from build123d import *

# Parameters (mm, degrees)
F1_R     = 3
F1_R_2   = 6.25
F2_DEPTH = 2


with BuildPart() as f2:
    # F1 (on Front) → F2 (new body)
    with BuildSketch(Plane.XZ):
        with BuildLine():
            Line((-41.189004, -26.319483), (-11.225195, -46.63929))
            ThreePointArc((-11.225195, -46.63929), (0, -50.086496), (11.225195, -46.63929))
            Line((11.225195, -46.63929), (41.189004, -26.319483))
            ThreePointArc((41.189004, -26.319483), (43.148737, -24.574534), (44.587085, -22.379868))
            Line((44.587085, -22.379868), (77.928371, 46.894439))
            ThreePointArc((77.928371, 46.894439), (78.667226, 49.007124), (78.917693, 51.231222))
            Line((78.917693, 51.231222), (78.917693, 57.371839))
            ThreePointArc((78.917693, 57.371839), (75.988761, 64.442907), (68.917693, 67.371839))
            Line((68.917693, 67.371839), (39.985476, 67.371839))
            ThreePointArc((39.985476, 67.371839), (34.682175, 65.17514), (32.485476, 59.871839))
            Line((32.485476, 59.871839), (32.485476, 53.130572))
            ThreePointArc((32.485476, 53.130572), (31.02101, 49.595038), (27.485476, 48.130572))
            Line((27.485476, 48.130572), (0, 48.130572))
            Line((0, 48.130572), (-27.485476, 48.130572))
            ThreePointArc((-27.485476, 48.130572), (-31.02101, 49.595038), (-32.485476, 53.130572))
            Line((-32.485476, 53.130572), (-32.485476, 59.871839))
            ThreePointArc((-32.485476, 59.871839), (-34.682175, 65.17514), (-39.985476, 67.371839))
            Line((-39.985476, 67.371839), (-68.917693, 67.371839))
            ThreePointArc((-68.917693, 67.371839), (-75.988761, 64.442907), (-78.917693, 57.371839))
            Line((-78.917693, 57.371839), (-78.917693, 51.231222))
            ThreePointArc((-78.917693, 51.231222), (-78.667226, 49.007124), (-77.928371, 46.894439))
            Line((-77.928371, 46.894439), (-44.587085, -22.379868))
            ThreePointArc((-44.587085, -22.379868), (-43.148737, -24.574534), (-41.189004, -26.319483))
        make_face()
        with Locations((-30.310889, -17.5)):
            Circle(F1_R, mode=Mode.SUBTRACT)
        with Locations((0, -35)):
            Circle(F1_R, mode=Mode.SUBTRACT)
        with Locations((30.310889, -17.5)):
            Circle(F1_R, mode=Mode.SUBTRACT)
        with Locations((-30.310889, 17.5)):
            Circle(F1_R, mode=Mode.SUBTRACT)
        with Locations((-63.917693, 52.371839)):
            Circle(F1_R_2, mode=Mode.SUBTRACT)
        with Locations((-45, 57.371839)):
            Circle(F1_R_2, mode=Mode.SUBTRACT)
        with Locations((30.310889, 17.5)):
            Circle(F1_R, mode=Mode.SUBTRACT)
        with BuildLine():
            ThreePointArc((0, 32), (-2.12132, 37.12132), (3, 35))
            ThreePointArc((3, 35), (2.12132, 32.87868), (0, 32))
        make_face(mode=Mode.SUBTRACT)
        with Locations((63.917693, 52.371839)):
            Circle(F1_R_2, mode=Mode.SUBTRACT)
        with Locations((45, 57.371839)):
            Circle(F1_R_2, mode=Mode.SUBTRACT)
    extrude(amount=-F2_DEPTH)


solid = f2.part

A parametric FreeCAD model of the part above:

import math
import FreeCAD as App
import Part
import Sketcher

doc = App.newDocument("Part")
params = doc.addObject("Spreadsheet::Sheet", "Params")
for row, (alias, value) in enumerate([
    ("sketch1_diameter", "6 mm"),
    ("sketch1_diameter2", "6 mm"),
    ("sketch1_diameter3", "6 mm"),
    ("sketch1_diameter4", "6 mm"),
    ("sketch1_diameter5", "6 mm"),
    ("pad1_length", "2 mm"),
], start=1):
    params.set(f"A{row}", alias)
    params.set(f"B{row}", "=" + value)
    params.setAlias(f"B{row}", alias)

body = doc.addObject("PartDesign::Body", "Body")

sketch1 = body.newObject("Sketcher::SketchObject", "Sketch")
sketch1.AttachmentSupport = (doc.getObject("XZ_Plane"), [""])
sketch1.MapMode = "FlatFace"
sketch1.addGeometry(Part.LineSegment(App.Vector(-41.189004, -26.319483, 0), App.Vector(-11.225195, -46.63929, 0)), False)
sketch1.addGeometry(Part.ArcOfCircle(Part.Circle(App.Vector(0, -30.086497, 0), App.Vector(0, 0, 1), 19.999999), math.radians(-124.142965), math.radians(-55.857035)), False)
sketch1.addGeometry(Part.LineSegment(App.Vector(11.225195, -46.63929, 0), App.Vector(41.189004, -26.319483, 0)), False)
sketch1.addGeometry(Part.ArcOfCircle(Part.Circle(App.Vector(35.576408, -18.043086, 0), App.Vector(0, 0, 1), 9.999999), math.radians(-55.857042), math.radians(-25.701217)), False)
sketch1.addGeometry(Part.LineSegment(App.Vector(44.587085, -22.379868, 0), App.Vector(77.928371, 46.894439, 0)), False)
sketch1.addGeometry(Part.ArcOfCircle(Part.Circle(App.Vector(68.917699, 51.23122, 0), App.Vector(0, 0, 1), 9.999994), math.radians(-25.701226), math.radians(0.000011)), False)
sketch1.addGeometry(Part.LineSegment(App.Vector(78.917693, 51.231222, 0), App.Vector(78.917693, 57.371839, 0)), False)
sketch1.addGeometry(Part.ArcOfCircle(Part.Circle(App.Vector(68.917694, 57.37184, 0), App.Vector(0, 0, 1), 9.999999), math.radians(-0.000004), math.radians(90.000004)), False)
sketch1.addGeometry(Part.LineSegment(App.Vector(68.917693, 67.371839, 0), App.Vector(39.985476, 67.371839, 0)), False)
sketch1.addGeometry(Part.ArcOfCircle(Part.Circle(App.Vector(39.985476, 59.871839, 0), App.Vector(0, 0, 1), 7.5), math.radians(89.999996), math.radians(180.000004)), False)
sketch1.addGeometry(Part.LineSegment(App.Vector(32.485476, 59.871839, 0), App.Vector(32.485476, 53.130572, 0)), False)
sketch1.addGeometry(Part.ArcOfCircle(Part.Circle(App.Vector(27.485476, 53.130572, 0), App.Vector(0, 0, 1), 5), math.radians(-90.000004), math.radians(0.000004)), False)
sketch1.addGeometry(Part.LineSegment(App.Vector(27.485476, 48.130572, 0), App.Vector(-27.485476, 48.130572, 0)), False)
sketch1.addGeometry(Part.ArcOfCircle(Part.Circle(App.Vector(-27.485476, 53.130572, 0), App.Vector(0, 0, 1), 5), math.radians(179.999996), math.radians(270.000004)), False)
sketch1.addGeometry(Part.LineSegment(App.Vector(-32.485476, 53.130572, 0), App.Vector(-32.485476, 59.871839, 0)), False)
sketch1.addGeometry(Part.ArcOfCircle(Part.Circle(App.Vector(-39.985476, 59.871839, 0), App.Vector(0, 0, 1), 7.5), math.radians(-0.000004), math.radians(90.000004)), False)
sketch1.addGeometry(Part.LineSegment(App.Vector(-39.985476, 67.371839, 0), App.Vector(-68.917693, 67.371839, 0)), False)
sketch1.addGeometry(Part.ArcOfCircle(Part.Circle(App.Vector(-68.917694, 57.37184, 0), App.Vector(0, 0, 1), 9.999999), math.radians(89.999996), math.radians(180.000004)), False)
sketch1.addGeometry(Part.LineSegment(App.Vector(-78.917693, 57.371839, 0), App.Vector(-78.917693, 51.231222, 0)), False)
sketch1.addGeometry(Part.ArcOfCircle(Part.Circle(App.Vector(-68.917699, 51.23122, 0), App.Vector(0, 0, 1), 9.999994), math.radians(179.999989), math.radians(205.701226)), False)
sketch1.addGeometry(Part.LineSegment(App.Vector(-77.928371, 46.894439, 0), App.Vector(-44.587085, -22.379868, 0)), False)
sketch1.addGeometry(Part.ArcOfCircle(Part.Circle(App.Vector(-35.576408, -18.043086, 0), App.Vector(0, 0, 1), 9.999999), math.radians(-154.298783), math.radians(-124.142958)), False)
sketch1.addGeometry(Part.Circle(App.Vector(-30.310889, -17.5, 0), App.Vector(0, 0, 1), 3), False)
sketch1.addGeometry(Part.Circle(App.Vector(0, -35, 0), App.Vector(0, 0, 1), 3), False)
sketch1.addGeometry(Part.Circle(App.Vector(30.310889, -17.5, 0), App.Vector(0, 0, 1), 3), False)
sketch1.addGeometry(Part.Circle(App.Vector(-30.310889, 17.5, 0), App.Vector(0, 0, 1), 3), False)
sketch1.addGeometry(Part.Circle(App.Vector(-63.917693, 52.371839, 0), App.Vector(0, 0, 1), 6.25), False)
sketch1.addGeometry(Part.Circle(App.Vector(-45, 57.371839, 0), App.Vector(0, 0, 1), 6.25), False)
sketch1.addGeometry(Part.Circle(App.Vector(30.310889, 17.5, 0), App.Vector(0, 0, 1), 3), False)
sketch1.addGeometry(Part.ArcOfCircle(Part.Circle(App.Vector(-0.000001, 35.000001, 0), App.Vector(0, 0, 1), 3.000001), math.radians(-89.999978), math.radians(-0.000022)), False)
sketch1.addGeometry(Part.ArcOfCircle(Part.Circle(App.Vector(0, 35, 0), App.Vector(0, 0, 1), 3), math.radians(0.000004), math.radians(269.999996)), False)
sketch1.addGeometry(Part.Circle(App.Vector(45, 57.371839, 0), App.Vector(0, 0, 1), 6.25), False)
sketch1.addGeometry(Part.Circle(App.Vector(63.917693, 52.371839, 0), App.Vector(0, 0, 1), 6.25), False)
sketch1.addConstraint(Sketcher.Constraint("Coincident", 0, 2, 1, 1))
sketch1.addConstraint(Sketcher.Constraint("Coincident", 1, 2, 2, 1))
sketch1.addConstraint(Sketcher.Constraint("Coincident", 2, 2, 3, 1))
sketch1.addConstraint(Sketcher.Constraint("Coincident", 3, 2, 4, 1))
sketch1.addConstraint(Sketcher.Constraint("Coincident", 4, 2, 5, 1))
sketch1.addConstraint(Sketcher.Constraint("Coincident", 5, 2, 6, 1))
sketch1.addConstraint(Sketcher.Constraint("Coincident", 6, 2, 7, 1))
sketch1.addConstraint(Sketcher.Constraint("Coincident", 7, 2, 8, 1))
sketch1.addConstraint(Sketcher.Constraint("Coincident", 8, 2, 9, 1))
sketch1.addConstraint(Sketcher.Constraint("Coincident", 9, 2, 10, 1))
sketch1.addConstraint(Sketcher.Constraint("Coincident", 10, 2, 11, 2))
sketch1.addConstraint(Sketcher.Constraint("Coincident", 11, 1, 12, 1))
sketch1.addConstraint(Sketcher.Constraint("Coincident", 12, 2, 13, 2))
sketch1.addConstraint(Sketcher.Constraint("Coincident", 13, 1, 14, 1))
sketch1.addConstraint(Sketcher.Constraint("Coincident", 14, 2, 15, 1))
sketch1.addConstraint(Sketcher.Constraint("Coincident", 15, 2, 16, 1))
sketch1.addConstraint(Sketcher.Constraint("Coincident", 16, 2, 17, 1))
sketch1.addConstraint(Sketcher.Constraint("Coincident", 17, 2, 18, 1))
sketch1.addConstraint(Sketcher.Constraint("Coincident", 18, 2, 19, 1))
sketch1.addConstraint(Sketcher.Constraint("Coincident", 19, 2, 20, 1))
sketch1.addConstraint(Sketcher.Constraint("Coincident", 20, 2, 21, 1))
sketch1.addConstraint(Sketcher.Constraint("Coincident", 21, 2, 0, 1))
sketch1.addConstraint(Sketcher.Constraint("Coincident", 29, 1, 30, 2))
sketch1.addConstraint(Sketcher.Constraint("Coincident", 30, 1, 29, 2))
sketch1.addConstraint(Sketcher.Constraint("Vertical", 6))
sketch1.addConstraint(Sketcher.Constraint("Horizontal", 8))
sketch1.addConstraint(Sketcher.Constraint("Vertical", 10))
sketch1.addConstraint(Sketcher.Constraint("Horizontal", 12))
sketch1.addConstraint(Sketcher.Constraint("Vertical", 14))
sketch1.addConstraint(Sketcher.Constraint("Horizontal", 16))
sketch1.addConstraint(Sketcher.Constraint("Vertical", 18))
sketch1.addConstraint(Sketcher.Constraint("PointOnObject", 1, 3, -2))
sketch1.addConstraint(Sketcher.Constraint("PointOnObject", 23, 3, -2))
sketch1.addConstraint(Sketcher.Constraint("PointOnObject", 29, 3, -2))
sketch1.addConstraint(Sketcher.Constraint("PointOnObject", 30, 3, -2))
sketch1.addConstraint(Sketcher.Constraint("PointOnObject", 29, 1, -2))
sketch1.addConstraint(Sketcher.Constraint("Diameter", 22, 6.0))
sketch1.addConstraint(Sketcher.Constraint("Diameter", 23, 6.0))
sketch1.addConstraint(Sketcher.Constraint("Diameter", 24, 6.0))
sketch1.addConstraint(Sketcher.Constraint("Diameter", 25, 6.0))
sketch1.addConstraint(Sketcher.Constraint("Diameter", 28, 6.0))
sketch1.addConstraint(Sketcher.Constraint("Radius", 1, 19.999999))
sketch1.addConstraint(Sketcher.Constraint("Radius", 3, 9.999999))
sketch1.addConstraint(Sketcher.Constraint("Radius", 7, 9.999999))
sketch1.addConstraint(Sketcher.Constraint("Radius", 11, 5.0))
sketch1.addConstraint(Sketcher.Constraint("Radius", 13, 5.0))
sketch1.addConstraint(Sketcher.Constraint("Radius", 17, 9.999999))
sketch1.addConstraint(Sketcher.Constraint("Radius", 21, 9.999999))
sketch1.addConstraint(Sketcher.Constraint("Radius", 29, 3.000001))
sketch1.addConstraint(Sketcher.Constraint("Diameter", 26, 12.5))
sketch1.addConstraint(Sketcher.Constraint("Diameter", 27, 12.5))
sketch1.addConstraint(Sketcher.Constraint("Diameter", 31, 12.5))
sketch1.addConstraint(Sketcher.Constraint("Diameter", 32, 12.5))
sketch1.addConstraint(Sketcher.Constraint("Radius", 9, 7.5))
sketch1.addConstraint(Sketcher.Constraint("Radius", 15, 7.5))
sketch1.addConstraint(Sketcher.Constraint("DistanceY", 23, 3, -1, 1, 35.0))
sketch1.addConstraint(Sketcher.Constraint("DistanceX", 27, 3, -1, 1, 45.0))
sketch1.addConstraint(Sketcher.Constraint("DistanceY", -1, 1, 29, 3, 35.000001))
sketch1.addConstraint(Sketcher.Constraint("DistanceX", -1, 1, 31, 3, 45.0))
sketch1.addConstraint(Sketcher.Constraint("DistanceY", -1, 1, 30, 1, 35.0))
sketch1.addConstraint(Sketcher.Constraint("DistanceY", 22, 3, 25, 3, 35.0))
sketch1.addConstraint(Sketcher.Constraint("DistanceX", 17, 3, 26, 3, 5.000001))
sketch1.addConstraint(Sketcher.Constraint("DistanceY", 26, 3, 17, 3, 5.000001))
sketch1.addConstraint(Sketcher.Constraint("DistanceY", 26, 3, 27, 3, 5.0))
sketch1.addConstraint(Sketcher.Constraint("DistanceY", 24, 3, 28, 3, 35.0))
sketch1.addConstraint(Sketcher.Constraint("DistanceX", 32, 3, 7, 3, 5.000001))
sketch1.addConstraint(Sketcher.Constraint("DistanceY", 32, 3, 7, 3, 5.000001))
sketch1.addConstraint(Sketcher.Constraint("DistanceY", 32, 3, 31, 3, 5.0))
sketch1.addConstraint(Sketcher.Constraint("DistanceY", 32, 3, 6, 2, 5.0))
sketch1.addConstraint(Sketcher.Constraint("DistanceX", 7, 2, 6, 2, 10.0))
sketch1.addConstraint(Sketcher.Constraint("DistanceX", 11, 1, 10, 2, 5.0))
sketch1.addConstraint(Sketcher.Constraint("DistanceY", 11, 1, 10, 2, 5.0))
sketch1.addConstraint(Sketcher.Constraint("DistanceX", 13, 1, 12, 2, 5.0))
sketch1.addConstraint(Sketcher.Constraint("DistanceY", 12, 2, 13, 1, 5.0))
sketch1.addConstraint(Sketcher.Constraint("DistanceX", 16, 2, 26, 3, 5.0))
sketch1.addConstraint(Sketcher.Constraint("DistanceY", 17, 2, 16, 2, 10.0))
sketch1.addConstraint(Sketcher.Constraint("DistanceY", 22, 3, -1, 1, 17.5))
sketch1.addConstraint(Sketcher.Constraint("DistanceY", 24, 3, -1, 1, 17.5))
sketch1.addConstraint(Sketcher.Constraint("DistanceY", 17, 3, 9, 3, 2.5))
sketch1.addConstraint(Sketcher.Constraint("DistanceX", 11, 3, 8, 2, 12.5))
sketch1.addConstraint(Sketcher.Constraint("DistanceY", 9, 2, 8, 2, 7.5))
sketch1.addConstraint(Sketcher.Constraint("DistanceY", 27, 3, 14, 2, 2.5))
sketch1.addConstraint(Sketcher.Constraint("DistanceX", 15, 2, 14, 2, 7.5))
sketch1.addConstraint(Sketcher.Constraint("Radius", 5, 9.999994))
sketch1.addConstraint(Sketcher.Constraint("Radius", 19, 9.999994))
sketch1.addConstraint(Sketcher.Constraint("DistanceX", 12, 2, 12, 1, 54.970952))
sketch1.addConstraint(Sketcher.Constraint("DistanceX", -1, 1, 5, 3, 68.917699))
sketch1.addConstraint(Sketcher.Constraint("DistanceX", 19, 3, -1, 1, 68.917699))
sketch1.addConstraint(Sketcher.Constraint("DistanceY", 4, 2, 7, 3, 10.477401))
sketch1.addConstraint(Sketcher.Constraint("DistanceY", 19, 2, 17, 2, 10.4774))
sketch1.addConstraint(Sketcher.Constraint("Distance", 0, 36.203928))
sketch1.addConstraint(Sketcher.Constraint("Distance", 2, 36.203928))
sketch1.addConstraint(Sketcher.Constraint("DistanceX", 8, 2, 8, 1, 28.932217))
sketch1.addConstraint(Sketcher.Constraint("DistanceY", 6, 1, 6, 2, 6.140617))
sketch1.addConstraint(Sketcher.Constraint("DistanceY", 10, 2, 10, 1, 6.741267))
sketch1.addConstraint(Sketcher.Constraint("DistanceY", 18, 2, 18, 1, 6.140617))
sketch1.addConstraint(Sketcher.Constraint("DistanceY", -1, 1, 5, 3, 51.23122))
sketch1.addConstraint(Sketcher.Constraint("DistanceY", -1, 1, 7, 3, 57.37184))
sketch1.addConstraint(Sketcher.Constraint("DistanceY", -1, 1, 19, 3, 51.23122))
sketch1.addConstraint(Sketcher.Constraint("DistanceX", 22, 3, -1, 1, 30.310889))
sketch1.addConstraint(Sketcher.Constraint("DistanceX", -1, 1, 24, 3, 30.310889))
sketch1.addConstraint(Sketcher.Constraint("DistanceX", 25, 3, -1, 1, 30.310889))
sketch1.addConstraint(Sketcher.Constraint("DistanceX", -1, 1, 28, 3, 30.310889))
sketch1.addConstraint(Sketcher.Constraint("DistanceY", 0, 2, -1, 1, 46.63929))
sketch1.addConstraint(Sketcher.Constraint("DistanceY", 1, 2, -1, 1, 46.63929))
sketch1.addConstraint(Sketcher.Constraint("DistanceY", 1, 3, 3, 3, 12.043411))
sketch1.addConstraint(Sketcher.Constraint("DistanceX", 3, 3, 5, 3, 33.341292))
sketch1.addConstraint(Sketcher.Constraint("DistanceY", 1, 3, 11, 3, 83.217069))
sketch1.addConstraint(Sketcher.Constraint("DistanceY", 1, 3, 21, 3, 12.043411))
sketch1.addConstraint(Sketcher.Constraint("DistanceX", 21, 3, 13, 3, 8.090931))
sketch1.addConstraint(Sketcher.Constraint("DistanceX", 2, 2, 3, 2, 3.398081))
sketch1.addConstraint(Sketcher.Constraint("DistanceY", 20, 2, 21, 3, 4.336782))
sketch1.setExpression("Constraints[36]", "Params.sketch1_diameter")
sketch1.setExpression("Constraints[37]", "Params.sketch1_diameter2")
sketch1.setExpression("Constraints[38]", "Params.sketch1_diameter3")
sketch1.setExpression("Constraints[39]", "Params.sketch1_diameter4")
sketch1.setExpression("Constraints[40]", "Params.sketch1_diameter5")
pad1 = body.newObject("PartDesign::Pad", "Pad")
pad1.Profile = sketch1
pad1.setExpression("Length", "Params.pad1_length")
pad1.Reversed = True

doc.recompute()
